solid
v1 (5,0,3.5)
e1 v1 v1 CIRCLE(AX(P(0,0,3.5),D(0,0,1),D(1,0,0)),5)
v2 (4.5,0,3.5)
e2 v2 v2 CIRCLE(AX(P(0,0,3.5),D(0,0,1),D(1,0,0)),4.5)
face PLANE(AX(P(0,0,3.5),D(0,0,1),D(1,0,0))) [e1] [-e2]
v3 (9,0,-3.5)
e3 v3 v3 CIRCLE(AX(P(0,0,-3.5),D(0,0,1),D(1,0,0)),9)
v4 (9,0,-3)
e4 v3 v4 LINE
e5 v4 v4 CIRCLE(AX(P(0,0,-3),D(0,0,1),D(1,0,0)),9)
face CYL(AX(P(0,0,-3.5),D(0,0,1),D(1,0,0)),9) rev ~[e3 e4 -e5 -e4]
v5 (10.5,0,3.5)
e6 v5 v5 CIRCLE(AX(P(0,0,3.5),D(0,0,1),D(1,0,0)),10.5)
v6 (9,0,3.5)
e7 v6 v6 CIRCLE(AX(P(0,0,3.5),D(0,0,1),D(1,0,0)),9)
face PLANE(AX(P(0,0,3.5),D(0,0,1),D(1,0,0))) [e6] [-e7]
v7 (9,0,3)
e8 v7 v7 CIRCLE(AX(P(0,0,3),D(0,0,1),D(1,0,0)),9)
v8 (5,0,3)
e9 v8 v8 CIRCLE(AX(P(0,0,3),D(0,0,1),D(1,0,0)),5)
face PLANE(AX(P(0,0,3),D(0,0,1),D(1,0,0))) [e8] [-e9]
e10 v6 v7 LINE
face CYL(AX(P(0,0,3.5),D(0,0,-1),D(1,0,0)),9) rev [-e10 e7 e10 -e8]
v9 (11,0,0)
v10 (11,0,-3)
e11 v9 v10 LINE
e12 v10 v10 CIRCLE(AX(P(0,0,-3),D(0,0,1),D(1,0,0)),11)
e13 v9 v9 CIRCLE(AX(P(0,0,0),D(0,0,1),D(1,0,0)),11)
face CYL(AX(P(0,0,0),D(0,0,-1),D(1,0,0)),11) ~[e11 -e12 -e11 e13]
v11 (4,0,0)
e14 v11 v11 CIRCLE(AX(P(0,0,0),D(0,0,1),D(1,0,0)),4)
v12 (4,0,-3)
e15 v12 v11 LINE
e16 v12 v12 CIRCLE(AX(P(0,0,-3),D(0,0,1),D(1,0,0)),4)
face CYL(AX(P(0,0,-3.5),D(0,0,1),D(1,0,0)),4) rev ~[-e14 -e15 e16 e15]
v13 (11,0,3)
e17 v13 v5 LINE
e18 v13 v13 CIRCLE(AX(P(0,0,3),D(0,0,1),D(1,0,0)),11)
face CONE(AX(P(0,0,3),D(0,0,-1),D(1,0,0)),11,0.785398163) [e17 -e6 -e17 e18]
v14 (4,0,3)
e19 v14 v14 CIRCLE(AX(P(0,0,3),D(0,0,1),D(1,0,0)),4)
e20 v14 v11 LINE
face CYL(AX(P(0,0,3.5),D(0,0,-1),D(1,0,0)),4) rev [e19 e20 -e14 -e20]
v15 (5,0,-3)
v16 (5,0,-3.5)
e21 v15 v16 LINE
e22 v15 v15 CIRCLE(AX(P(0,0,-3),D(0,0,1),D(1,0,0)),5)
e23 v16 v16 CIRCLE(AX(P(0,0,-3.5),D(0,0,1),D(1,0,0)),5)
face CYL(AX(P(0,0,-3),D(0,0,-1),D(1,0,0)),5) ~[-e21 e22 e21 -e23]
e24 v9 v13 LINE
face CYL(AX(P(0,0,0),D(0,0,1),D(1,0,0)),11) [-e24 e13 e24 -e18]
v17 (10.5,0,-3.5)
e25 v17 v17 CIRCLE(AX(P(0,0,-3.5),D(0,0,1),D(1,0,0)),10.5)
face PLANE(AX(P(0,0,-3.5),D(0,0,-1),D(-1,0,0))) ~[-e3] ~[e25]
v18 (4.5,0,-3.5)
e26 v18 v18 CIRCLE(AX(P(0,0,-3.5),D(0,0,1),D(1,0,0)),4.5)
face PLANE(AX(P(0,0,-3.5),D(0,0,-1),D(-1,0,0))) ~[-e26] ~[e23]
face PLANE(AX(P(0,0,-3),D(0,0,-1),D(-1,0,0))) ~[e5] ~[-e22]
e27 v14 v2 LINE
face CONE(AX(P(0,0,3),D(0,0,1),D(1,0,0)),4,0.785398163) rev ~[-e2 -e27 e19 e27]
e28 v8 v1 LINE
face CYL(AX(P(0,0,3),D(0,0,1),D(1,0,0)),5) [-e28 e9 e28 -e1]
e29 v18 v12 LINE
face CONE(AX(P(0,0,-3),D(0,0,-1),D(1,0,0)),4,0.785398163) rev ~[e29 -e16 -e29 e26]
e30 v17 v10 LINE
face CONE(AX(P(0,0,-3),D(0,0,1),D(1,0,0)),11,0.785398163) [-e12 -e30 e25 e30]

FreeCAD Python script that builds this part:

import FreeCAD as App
import Part
import Sketcher
Q = App.Units.Quantity


def edges_at(feature, points):
    """Names of the edges that pass closest to the given points."""
    edges = feature.Shape.Edges
    near = lambda p: min(range(len(edges)), key=lambda i: edges[i].distToShape(Part.Vertex(*p))[0])
    return sorted({f"Edge{near(p) + 1}" for p in points})


def add_polygon(sketch, points):
    """Adds a closed chain of lines whose ends are joined by coincident constraints."""
    first, n = sketch.GeometryCount, len(points)
    for a, b in zip(points, points[1:] + points[:1]):
        sketch.addGeometry(Part.LineSegment(App.Vector(*a, 0), App.Vector(*b, 0)), False)
    for i in range(n):
        sketch.addConstraint(Sketcher.Constraint("Coincident", first + i, 2, first + (i + 1) % n, 1))

doc = App.newDocument("Part")
body = doc.addObject("PartDesign::Body", "Body")

sketch1 = body.newObject("Sketcher::SketchObject", "Sketch")
sketch1.AttachmentSupport = (doc.getObject("XZ_Plane"), [""])
sketch1.MapMode = "FlatFace"
add_polygon(sketch1, [(5, 3.5), (4, 3.5), (4, 0), (11, 0), (11, 3.5), (9, 3.5), (9, 3), (5, 3)])
sketch1.addConstraint(Sketcher.Constraint("Horizontal", 0))
sketch1.addConstraint(Sketcher.Constraint("Vertical", 1))
sketch1.addConstraint(Sketcher.Constraint("Horizontal", 2))
sketch1.addConstraint(Sketcher.Constraint("Vertical", 3))
sketch1.addConstraint(Sketcher.Constraint("Horizontal", 4))
sketch1.addConstraint(Sketcher.Constraint("Vertical", 5))
sketch1.addConstraint(Sketcher.Constraint("Horizontal", 6))
sketch1.addConstraint(Sketcher.Constraint("Vertical", 7))
sketch1.addConstraint(Sketcher.Constraint("PointOnObject", 1, 2, -1))
sketch1.addConstraint(Sketcher.Constraint("Horizontal", 0, 2, 3, 2))
sketch1.addConstraint(Sketcher.Constraint("DistanceX", 0, 2, 0, 1, Q("1 mm")))
sketch1.addConstraint(Sketcher.Constraint("DistanceX", 2, 1, 2, 2, Q("7 mm")))
sketch1.addConstraint(Sketcher.Constraint("DistanceX", 4, 2, 4, 1, Q("2 mm")))
sketch1.addConstraint(Sketcher.Constraint("DistanceY", 1, 2, 1, 1, Q("3.5 mm")))
sketch1.addConstraint(Sketcher.Constraint("DistanceY", 5, 2, 5, 1, Q("0.5 mm")))
sketch1.addConstraint(Sketcher.Constraint("DistanceX", -1, 1, 0, 2, Q("4 mm")))
revolution = body.newObject("PartDesign::Revolution", "Revolution")
revolution.Profile = sketch1
revolution.ReferenceAxis = (sketch1, ["V_Axis"])
revolution.Angle = 360
body2 = doc.addObject("PartDesign::Body", "Body001")
doc.recompute()

body2.BaseFeature = body
doc.recompute()

mirroring = doc.addObject("Part::Mirroring", "Mirroring")
mirroring.Source = body
mirroring.Base = App.Vector(0, 0, 0)
mirroring.Normal = App.Vector(0, 0, 1)
body3 = doc.addObject("PartDesign::Body", "Body002")
body3.BaseFeature = mirroring
boolean = body2.newObject("PartDesign::Boolean", "Boolean")
boolean.Type = "Fuse"
boolean.addObjects([body3])
doc.recompute()

chamfer = body2.newObject("PartDesign::Chamfer", "Chamfer")
chamfer.Base = (boolean, edges_at(boolean, [
    (-11, 0, 3.5),
    (-11, 0, -3.5),
    (-4, 0, 3.5),
    (-4, 0, -3.5),
]))
chamfer.Size = 0.5
mirroring.Visibility = False

doc.recompute()
